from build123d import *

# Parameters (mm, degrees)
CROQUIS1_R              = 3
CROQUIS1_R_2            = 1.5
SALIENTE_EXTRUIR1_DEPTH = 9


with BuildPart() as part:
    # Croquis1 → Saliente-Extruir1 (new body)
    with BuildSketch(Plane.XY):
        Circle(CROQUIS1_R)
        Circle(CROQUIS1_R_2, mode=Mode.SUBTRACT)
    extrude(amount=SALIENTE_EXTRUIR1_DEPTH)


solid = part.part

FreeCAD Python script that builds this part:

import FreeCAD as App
import Part
import Sketcher
from FreeCAD import Vector

doc = App.newDocument("Part")
body = doc.addObject("PartDesign::Body", "Body")

# Sketch on XY plane
sketch1 = doc.addObject("Sketcher::SketchObject", "Sketch")
body.addObject(sketch1)
sketch1.AttachmentSupport = (doc.XY_Plane, [""])
sketch1.MapMode = "FlatFace"
sketch1.addGeometry([
    Part.Circle(Vector(0, 0, 0), Vector(0, 0, 1), 3),
    Part.Circle(Vector(0, 0, 0), Vector(0, 0, 1), 1.5),
], False)
sketch1.addConstraint([
    Sketcher.Constraint("Coincident", 0, 3, -1, 1),
    Sketcher.Constraint("Coincident", 1, 3, -1, 1),
    Sketcher.Constraint("Diameter", 0, 6.0),
    Sketcher.Constraint("Diameter", 1, 3.0),
])
pad1 = doc.addObject("PartDesign::Pad", "Pad")
body.addObject(pad1)
pad1.Profile = sketch1
pad1.Length = 9

doc.recompute()
